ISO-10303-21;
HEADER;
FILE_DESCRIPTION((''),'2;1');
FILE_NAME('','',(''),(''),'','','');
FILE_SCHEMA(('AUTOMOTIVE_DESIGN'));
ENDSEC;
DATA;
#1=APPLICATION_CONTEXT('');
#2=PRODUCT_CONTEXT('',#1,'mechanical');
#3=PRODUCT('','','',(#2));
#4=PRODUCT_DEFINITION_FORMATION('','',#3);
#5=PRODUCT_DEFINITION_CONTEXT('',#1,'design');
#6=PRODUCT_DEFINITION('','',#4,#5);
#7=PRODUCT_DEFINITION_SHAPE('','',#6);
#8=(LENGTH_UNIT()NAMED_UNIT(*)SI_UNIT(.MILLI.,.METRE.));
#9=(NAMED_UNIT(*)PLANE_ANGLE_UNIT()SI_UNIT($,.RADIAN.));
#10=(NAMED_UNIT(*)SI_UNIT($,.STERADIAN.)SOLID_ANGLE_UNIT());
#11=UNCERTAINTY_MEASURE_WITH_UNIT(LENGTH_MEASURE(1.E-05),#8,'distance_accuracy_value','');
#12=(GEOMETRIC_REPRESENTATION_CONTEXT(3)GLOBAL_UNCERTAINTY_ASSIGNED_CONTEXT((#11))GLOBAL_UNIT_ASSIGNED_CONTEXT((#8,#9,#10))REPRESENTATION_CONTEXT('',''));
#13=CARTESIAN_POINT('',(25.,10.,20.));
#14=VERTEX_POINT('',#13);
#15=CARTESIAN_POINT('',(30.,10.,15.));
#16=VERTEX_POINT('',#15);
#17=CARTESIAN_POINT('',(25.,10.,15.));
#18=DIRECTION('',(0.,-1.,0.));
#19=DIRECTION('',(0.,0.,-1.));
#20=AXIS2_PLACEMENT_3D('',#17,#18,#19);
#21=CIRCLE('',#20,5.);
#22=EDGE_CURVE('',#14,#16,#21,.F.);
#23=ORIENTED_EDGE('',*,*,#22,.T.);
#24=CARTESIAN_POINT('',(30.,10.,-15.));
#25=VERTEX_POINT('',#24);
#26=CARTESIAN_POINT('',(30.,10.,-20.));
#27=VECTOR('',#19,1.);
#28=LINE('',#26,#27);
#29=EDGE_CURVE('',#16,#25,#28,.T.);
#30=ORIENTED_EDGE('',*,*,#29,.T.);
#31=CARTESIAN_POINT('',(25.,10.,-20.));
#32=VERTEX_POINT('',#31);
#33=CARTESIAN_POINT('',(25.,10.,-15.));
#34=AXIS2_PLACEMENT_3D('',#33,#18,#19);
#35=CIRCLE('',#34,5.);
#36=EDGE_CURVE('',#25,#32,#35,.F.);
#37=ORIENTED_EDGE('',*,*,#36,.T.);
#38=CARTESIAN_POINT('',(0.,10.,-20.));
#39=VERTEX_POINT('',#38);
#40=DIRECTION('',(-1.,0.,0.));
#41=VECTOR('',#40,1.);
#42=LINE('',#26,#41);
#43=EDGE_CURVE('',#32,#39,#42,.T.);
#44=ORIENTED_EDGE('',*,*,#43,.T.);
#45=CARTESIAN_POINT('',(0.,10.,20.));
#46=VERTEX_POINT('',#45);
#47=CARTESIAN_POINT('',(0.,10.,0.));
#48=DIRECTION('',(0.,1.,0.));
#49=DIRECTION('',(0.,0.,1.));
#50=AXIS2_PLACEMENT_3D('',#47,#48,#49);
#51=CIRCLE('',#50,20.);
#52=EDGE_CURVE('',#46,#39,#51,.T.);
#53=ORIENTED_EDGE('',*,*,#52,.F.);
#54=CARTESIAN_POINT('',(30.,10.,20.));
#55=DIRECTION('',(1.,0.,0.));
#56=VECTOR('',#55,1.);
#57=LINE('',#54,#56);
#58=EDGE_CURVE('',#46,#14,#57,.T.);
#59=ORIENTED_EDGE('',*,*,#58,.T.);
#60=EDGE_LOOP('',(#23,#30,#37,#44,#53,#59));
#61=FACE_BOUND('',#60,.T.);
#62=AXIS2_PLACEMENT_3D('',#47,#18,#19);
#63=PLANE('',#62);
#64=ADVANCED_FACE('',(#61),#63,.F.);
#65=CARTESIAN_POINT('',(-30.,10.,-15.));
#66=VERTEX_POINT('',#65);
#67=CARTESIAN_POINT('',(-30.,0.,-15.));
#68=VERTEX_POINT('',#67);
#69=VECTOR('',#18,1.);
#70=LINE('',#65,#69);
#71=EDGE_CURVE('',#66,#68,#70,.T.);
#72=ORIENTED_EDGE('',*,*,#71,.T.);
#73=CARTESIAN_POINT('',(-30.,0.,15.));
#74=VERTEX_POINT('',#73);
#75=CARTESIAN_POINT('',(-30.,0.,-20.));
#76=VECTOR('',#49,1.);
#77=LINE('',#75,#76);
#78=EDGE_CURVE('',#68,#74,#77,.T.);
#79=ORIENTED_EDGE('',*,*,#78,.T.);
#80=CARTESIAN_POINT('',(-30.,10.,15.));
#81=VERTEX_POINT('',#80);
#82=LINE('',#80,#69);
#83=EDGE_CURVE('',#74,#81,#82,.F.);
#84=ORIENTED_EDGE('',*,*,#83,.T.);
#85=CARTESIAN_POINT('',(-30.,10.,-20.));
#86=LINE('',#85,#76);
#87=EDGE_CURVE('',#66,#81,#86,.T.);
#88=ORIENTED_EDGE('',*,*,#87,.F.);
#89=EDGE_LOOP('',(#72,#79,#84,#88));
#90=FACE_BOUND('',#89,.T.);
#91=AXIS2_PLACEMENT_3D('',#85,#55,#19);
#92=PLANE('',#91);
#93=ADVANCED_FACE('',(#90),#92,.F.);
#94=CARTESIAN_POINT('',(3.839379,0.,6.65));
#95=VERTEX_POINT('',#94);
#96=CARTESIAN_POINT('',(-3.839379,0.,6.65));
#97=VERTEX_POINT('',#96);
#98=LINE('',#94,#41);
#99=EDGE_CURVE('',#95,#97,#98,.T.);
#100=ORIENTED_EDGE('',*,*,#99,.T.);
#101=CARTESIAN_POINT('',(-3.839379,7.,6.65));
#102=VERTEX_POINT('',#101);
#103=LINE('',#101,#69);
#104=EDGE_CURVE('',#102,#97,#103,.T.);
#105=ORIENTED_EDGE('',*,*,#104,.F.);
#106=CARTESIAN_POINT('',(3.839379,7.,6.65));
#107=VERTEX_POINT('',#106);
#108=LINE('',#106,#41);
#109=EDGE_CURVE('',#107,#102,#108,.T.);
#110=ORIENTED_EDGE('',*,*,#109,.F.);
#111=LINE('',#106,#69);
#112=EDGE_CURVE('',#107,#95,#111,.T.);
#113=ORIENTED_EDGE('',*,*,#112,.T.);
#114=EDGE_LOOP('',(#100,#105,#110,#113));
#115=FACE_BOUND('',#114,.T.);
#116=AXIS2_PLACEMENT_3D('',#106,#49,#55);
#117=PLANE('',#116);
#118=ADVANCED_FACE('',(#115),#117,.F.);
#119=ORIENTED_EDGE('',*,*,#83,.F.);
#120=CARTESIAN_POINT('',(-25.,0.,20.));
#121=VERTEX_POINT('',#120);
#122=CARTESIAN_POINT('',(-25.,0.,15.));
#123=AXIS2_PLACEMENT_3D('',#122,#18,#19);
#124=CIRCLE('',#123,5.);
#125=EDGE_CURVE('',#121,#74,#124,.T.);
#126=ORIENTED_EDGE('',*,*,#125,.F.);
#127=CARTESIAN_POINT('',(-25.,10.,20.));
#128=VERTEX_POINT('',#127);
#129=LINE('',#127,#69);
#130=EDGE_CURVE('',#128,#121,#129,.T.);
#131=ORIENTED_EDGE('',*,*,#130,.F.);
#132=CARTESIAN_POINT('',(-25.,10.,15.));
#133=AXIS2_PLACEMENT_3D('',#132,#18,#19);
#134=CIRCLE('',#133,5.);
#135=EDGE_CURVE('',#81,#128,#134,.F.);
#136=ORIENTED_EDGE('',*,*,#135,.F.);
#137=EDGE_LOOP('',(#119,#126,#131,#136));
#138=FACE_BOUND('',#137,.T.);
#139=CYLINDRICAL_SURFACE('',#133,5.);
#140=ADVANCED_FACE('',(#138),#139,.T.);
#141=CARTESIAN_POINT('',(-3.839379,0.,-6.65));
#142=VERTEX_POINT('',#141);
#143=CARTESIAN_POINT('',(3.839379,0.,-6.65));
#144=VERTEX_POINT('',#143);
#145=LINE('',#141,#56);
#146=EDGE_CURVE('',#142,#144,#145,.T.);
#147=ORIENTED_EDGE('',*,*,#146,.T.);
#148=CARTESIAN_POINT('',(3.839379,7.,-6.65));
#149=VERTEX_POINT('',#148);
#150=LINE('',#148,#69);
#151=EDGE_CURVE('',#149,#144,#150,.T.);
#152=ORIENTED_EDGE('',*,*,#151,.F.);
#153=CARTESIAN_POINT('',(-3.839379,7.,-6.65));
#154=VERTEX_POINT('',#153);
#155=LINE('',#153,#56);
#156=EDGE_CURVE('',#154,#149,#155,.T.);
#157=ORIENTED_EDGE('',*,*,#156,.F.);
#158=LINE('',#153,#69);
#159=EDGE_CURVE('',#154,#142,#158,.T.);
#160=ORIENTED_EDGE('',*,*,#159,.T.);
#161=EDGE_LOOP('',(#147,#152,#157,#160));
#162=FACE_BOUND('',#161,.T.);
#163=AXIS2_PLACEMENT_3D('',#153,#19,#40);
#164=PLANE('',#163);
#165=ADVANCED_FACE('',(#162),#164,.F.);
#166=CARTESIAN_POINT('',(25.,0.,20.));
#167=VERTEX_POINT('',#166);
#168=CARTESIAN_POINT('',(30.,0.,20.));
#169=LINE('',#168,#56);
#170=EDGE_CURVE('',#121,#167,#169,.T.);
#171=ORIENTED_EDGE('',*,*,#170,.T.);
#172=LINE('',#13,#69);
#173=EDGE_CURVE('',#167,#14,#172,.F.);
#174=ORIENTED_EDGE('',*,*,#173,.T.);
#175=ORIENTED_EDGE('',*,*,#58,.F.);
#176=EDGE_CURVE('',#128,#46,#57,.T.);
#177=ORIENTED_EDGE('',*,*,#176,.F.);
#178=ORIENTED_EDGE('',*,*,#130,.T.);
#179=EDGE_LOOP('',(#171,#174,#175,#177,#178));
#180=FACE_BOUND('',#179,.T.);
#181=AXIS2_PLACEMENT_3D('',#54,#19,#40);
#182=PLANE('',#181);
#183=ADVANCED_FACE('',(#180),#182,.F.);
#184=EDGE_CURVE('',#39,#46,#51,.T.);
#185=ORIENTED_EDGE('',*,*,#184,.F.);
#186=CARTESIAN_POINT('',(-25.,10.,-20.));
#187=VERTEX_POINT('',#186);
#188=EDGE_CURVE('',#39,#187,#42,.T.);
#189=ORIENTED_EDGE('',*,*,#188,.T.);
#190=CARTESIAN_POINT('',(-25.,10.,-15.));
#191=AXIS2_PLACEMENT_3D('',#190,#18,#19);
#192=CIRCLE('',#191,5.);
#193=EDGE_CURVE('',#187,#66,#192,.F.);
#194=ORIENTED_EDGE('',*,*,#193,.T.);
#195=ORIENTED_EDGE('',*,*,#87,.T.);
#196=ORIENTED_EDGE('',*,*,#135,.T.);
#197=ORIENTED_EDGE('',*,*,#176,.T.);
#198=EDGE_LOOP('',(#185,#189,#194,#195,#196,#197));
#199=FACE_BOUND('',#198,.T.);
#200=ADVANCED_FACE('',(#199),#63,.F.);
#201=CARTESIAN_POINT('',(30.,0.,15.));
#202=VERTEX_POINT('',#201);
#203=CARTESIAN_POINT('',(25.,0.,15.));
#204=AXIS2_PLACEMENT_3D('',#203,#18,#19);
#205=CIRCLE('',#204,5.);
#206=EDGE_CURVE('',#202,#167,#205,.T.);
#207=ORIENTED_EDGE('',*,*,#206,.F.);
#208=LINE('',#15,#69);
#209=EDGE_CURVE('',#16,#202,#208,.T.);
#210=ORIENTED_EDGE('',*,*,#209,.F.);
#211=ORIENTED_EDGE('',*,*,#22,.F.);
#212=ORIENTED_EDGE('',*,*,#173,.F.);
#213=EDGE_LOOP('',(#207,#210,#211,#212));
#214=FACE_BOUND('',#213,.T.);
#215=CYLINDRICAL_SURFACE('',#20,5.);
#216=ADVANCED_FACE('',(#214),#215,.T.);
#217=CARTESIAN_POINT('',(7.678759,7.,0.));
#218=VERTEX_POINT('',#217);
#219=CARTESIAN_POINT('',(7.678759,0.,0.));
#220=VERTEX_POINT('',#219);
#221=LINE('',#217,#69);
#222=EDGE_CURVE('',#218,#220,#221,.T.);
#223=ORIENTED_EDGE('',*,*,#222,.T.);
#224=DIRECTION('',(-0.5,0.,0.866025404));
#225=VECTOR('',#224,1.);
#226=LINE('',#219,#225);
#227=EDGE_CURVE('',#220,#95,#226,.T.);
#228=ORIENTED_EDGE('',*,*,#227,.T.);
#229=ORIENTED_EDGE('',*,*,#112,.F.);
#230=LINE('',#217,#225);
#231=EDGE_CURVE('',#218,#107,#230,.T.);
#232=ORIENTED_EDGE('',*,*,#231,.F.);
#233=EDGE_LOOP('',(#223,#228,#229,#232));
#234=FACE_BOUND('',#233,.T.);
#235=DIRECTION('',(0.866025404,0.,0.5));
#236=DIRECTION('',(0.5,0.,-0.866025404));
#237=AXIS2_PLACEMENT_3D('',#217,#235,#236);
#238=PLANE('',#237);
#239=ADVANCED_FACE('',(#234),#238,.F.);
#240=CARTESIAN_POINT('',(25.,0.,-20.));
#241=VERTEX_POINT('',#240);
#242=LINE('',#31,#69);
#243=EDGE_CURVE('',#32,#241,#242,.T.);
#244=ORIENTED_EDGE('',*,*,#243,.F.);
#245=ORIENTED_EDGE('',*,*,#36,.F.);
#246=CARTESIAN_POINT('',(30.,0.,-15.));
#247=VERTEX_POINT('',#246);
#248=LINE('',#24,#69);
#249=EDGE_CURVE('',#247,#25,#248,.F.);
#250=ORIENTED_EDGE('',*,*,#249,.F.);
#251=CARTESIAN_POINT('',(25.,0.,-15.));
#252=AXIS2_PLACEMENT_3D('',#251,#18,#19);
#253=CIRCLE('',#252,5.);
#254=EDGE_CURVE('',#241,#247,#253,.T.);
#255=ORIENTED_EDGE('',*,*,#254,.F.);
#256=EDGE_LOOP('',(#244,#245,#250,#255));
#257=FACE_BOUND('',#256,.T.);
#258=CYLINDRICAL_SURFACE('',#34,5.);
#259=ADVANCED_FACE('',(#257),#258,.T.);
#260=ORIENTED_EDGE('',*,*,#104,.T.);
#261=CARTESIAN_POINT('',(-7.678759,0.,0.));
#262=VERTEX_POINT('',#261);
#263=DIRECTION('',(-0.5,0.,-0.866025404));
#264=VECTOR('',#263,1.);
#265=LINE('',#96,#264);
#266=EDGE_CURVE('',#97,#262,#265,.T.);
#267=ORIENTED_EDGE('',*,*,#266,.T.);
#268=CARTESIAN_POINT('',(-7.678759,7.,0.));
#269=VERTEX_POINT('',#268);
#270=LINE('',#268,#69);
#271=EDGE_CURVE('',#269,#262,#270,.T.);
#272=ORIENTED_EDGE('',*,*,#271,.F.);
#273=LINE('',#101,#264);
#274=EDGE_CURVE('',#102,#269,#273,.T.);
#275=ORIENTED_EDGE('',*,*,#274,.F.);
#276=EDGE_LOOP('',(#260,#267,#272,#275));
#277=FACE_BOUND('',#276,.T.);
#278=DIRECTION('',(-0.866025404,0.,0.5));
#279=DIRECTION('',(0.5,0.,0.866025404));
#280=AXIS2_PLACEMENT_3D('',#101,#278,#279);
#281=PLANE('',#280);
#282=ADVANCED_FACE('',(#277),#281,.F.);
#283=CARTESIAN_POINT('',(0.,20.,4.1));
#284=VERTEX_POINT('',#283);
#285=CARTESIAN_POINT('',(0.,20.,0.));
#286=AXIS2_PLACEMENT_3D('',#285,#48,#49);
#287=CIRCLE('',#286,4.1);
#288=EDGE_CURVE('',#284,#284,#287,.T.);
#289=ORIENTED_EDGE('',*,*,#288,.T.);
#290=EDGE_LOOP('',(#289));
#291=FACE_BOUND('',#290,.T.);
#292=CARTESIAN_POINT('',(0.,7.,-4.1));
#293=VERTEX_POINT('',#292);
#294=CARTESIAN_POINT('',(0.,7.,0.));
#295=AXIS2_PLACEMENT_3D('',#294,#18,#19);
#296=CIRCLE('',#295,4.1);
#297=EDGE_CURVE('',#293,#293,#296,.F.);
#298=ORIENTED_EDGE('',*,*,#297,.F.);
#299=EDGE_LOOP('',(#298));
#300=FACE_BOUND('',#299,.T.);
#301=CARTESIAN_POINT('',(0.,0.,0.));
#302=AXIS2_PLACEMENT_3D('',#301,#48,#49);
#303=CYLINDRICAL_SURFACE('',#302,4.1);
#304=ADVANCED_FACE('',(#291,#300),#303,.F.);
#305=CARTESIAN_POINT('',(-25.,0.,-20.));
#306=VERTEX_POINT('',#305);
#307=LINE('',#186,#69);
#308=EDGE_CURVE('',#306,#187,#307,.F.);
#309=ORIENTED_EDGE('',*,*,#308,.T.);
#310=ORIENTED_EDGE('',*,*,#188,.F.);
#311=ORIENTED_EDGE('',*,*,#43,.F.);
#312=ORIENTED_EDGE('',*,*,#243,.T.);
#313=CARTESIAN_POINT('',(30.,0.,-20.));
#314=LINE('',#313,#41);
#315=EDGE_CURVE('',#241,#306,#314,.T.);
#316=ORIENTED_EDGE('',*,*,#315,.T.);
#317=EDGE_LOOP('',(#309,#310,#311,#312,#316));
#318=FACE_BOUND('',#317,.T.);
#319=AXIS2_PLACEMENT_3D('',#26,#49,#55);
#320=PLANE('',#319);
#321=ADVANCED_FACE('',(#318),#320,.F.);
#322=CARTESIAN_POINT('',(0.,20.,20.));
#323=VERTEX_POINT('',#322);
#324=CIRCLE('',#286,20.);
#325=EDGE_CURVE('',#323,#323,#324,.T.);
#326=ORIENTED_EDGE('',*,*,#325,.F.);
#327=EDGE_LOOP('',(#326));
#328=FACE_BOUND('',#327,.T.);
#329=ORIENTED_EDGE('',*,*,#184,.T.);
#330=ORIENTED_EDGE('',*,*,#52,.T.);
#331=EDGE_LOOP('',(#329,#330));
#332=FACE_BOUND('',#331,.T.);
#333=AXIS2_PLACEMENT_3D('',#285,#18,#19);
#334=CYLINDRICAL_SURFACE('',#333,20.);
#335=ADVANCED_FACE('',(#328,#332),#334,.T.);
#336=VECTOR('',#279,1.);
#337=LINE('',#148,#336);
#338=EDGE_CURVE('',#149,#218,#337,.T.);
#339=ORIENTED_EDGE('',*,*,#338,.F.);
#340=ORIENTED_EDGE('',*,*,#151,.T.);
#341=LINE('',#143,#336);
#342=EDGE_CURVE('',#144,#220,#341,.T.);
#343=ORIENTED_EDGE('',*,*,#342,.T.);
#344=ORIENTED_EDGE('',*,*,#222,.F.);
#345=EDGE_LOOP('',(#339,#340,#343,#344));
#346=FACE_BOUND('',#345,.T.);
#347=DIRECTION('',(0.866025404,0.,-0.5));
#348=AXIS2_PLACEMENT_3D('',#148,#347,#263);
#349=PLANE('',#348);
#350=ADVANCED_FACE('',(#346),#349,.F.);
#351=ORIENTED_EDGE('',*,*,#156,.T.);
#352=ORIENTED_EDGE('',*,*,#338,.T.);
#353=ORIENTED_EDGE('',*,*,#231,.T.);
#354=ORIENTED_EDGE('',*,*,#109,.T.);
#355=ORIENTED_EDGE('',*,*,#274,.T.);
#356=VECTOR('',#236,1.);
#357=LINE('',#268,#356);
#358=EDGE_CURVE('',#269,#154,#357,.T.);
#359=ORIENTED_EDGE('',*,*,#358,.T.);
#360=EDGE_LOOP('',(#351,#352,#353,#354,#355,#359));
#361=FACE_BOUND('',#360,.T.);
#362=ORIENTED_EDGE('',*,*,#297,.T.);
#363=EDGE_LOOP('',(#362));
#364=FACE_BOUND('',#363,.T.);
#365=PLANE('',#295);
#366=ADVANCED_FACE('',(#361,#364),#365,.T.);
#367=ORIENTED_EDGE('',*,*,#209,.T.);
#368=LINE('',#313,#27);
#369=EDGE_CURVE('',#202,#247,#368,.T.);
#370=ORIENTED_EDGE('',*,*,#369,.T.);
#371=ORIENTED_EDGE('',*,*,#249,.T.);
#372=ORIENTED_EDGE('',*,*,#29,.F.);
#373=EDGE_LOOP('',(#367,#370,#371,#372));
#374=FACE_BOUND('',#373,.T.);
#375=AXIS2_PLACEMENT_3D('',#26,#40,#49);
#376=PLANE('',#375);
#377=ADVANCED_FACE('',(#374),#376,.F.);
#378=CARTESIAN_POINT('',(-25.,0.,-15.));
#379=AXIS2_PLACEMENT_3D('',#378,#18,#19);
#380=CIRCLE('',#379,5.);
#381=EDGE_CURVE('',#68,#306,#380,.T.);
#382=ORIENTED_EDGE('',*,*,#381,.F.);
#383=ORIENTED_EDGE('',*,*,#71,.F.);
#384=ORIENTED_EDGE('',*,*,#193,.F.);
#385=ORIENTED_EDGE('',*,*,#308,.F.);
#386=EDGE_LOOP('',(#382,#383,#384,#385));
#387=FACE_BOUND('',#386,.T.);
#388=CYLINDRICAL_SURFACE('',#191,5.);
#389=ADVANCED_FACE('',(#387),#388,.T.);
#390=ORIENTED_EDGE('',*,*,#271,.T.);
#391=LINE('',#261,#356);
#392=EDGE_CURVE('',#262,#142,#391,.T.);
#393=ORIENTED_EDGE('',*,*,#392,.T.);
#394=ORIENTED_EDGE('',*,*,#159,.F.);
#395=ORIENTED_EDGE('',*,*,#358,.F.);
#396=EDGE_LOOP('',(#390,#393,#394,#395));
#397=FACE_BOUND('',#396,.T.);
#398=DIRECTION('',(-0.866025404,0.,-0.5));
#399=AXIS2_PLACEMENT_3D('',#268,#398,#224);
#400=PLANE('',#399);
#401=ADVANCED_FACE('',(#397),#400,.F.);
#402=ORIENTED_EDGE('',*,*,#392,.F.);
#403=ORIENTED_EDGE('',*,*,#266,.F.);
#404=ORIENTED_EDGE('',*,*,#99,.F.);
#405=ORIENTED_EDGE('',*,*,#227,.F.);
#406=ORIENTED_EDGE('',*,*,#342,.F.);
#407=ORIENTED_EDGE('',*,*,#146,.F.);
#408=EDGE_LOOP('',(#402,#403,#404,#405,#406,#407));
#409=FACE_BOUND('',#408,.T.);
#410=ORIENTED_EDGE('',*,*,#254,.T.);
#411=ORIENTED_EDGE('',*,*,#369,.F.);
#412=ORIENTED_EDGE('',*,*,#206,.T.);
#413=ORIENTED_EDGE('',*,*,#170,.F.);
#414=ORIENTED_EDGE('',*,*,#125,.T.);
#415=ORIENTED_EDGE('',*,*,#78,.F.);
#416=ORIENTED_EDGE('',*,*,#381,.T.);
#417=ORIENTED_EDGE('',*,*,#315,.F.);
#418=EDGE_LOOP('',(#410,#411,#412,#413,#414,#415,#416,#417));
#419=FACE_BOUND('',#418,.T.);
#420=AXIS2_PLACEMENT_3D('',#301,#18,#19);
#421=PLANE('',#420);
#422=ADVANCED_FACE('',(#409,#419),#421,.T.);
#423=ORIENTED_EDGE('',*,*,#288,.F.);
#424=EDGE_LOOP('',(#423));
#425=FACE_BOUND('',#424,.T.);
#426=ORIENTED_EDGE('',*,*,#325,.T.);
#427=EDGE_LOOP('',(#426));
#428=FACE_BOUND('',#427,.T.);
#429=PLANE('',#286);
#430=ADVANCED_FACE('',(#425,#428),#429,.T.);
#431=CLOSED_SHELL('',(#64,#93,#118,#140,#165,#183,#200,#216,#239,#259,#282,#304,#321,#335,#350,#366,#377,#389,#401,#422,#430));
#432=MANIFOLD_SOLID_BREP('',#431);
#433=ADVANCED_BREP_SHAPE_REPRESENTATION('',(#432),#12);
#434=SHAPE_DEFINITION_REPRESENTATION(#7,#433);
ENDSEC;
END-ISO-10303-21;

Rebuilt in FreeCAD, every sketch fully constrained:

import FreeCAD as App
import Part
import Sketcher

V = App.Vector
Q = App.Units.Quantity


def edges_at(feature, points):
    """Names of the edges that pass closest to the given points."""
    edges = feature.Shape.Edges
    near = lambda p: min(range(len(edges)), key=lambda i: edges[i].distToShape(Part.Vertex(*p))[0])
    return sorted({f"Edge{near(p) + 1}" for p in points})

doc = App.newDocument("Part")
params = doc.addObject("Spreadsheet::Sheet", "Params")
for row, (alias, value) in enumerate([
    ("sketch1_width", "60 mm"),
    ("sketch1_height", "40 mm"),
    ("pad1_length", "10 mm"),
    ("sketch2_diameter", "40 mm"),
    ("pad2_length", "10 mm"),
    ("sketch3_diameter", "8.2 mm"),
    ("fillet_radius", "5 mm"),
    ("pocket2_length", "7 mm"),
], start=1):
    params.set(f"A{row}", alias)
    params.set(f"B{row}", "=" + value)
    params.setAlias(f"B{row}", alias)

body = doc.addObject("PartDesign::Body", "Body")

# Sketch on XZ plane
sketch1 = body.newObject("Sketcher::SketchObject", "Sketch")
sketch1.AttachmentSupport = (doc.getObject("XZ_Plane"), [""])
sketch1.MapMode = "FlatFace"
sketch1.addGeometry([
    Part.LineSegment(V(-30, -20, 0), V(-30, 20, 0)),
    Part.LineSegment(V(-30, 20, 0), V(30, 20, 0)),
    Part.LineSegment(V(30, 20, 0), V(30, -20, 0)),
    Part.LineSegment(V(30, -20, 0), V(-30, -20, 0)),
], False)
sketch1.addConstraint([
    Sketcher.Constraint("Coincident", 0, 2, 1, 1),
    Sketcher.Constraint("Coincident", 1, 2, 2, 1),
    Sketcher.Constraint("Coincident", 2, 2, 3, 1),
    Sketcher.Constraint("Coincident", 3, 2, 0, 1),
    Sketcher.Constraint("Vertical", 0),
    Sketcher.Constraint("Horizontal", 1),
    Sketcher.Constraint("Vertical", 2),
    Sketcher.Constraint("Horizontal", 3),
    Sketcher.Constraint("Symmetric", 0, 2, 2, 2, -1, 1),
    Sketcher.Constraint("DistanceX", 1, 1, 1, 2, Q("60 mm")),
    Sketcher.Constraint("DistanceY", 0, 1, 0, 2, Q("40 mm")),
])
sketch1.setExpression("Constraints[9]", "Params.sketch1_width")
sketch1.setExpression("Constraints[10]", "Params.sketch1_height")
pad1 = body.newObject("PartDesign::Pad", "Pad")
pad1.Profile = sketch1
pad1.setExpression("Length", "Params.pad1_length")
pad1.Reversed = True

# Sketch on XZ plane
sketch2 = body.newObject("Sketcher::SketchObject", "Sketch001")
sketch2.AttachmentSupport = (doc.getObject("XZ_Plane"), [""])
sketch2.MapMode = "FlatFace"
sketch2.AttachmentOffset = App.Placement(V(0, 0, -10), App.Rotation())
sketch2.addGeometry(Part.Circle(V(0, 0, 0), V(0, 0, 1), 20), False)
sketch2.addConstraint([
    Sketcher.Constraint("Coincident", 0, 3, -1, 1),
    Sketcher.Constraint("Diameter", 0, Q("40 mm")),
])
sketch2.setExpression("Constraints[1]", "Params.sketch2_diameter")
pad2 = body.newObject("PartDesign::Pad", "Pad001")
pad2.Profile = sketch2
pad2.setExpression("Length", "Params.pad2_length")
pad2.Reversed = True

# Sketch on XZ plane
sketch3 = body.newObject("Sketcher::SketchObject", "Sketch002")
sketch3.AttachmentSupport = (doc.getObject("XZ_Plane"), [""])
sketch3.MapMode = "FlatFace"
sketch3.AttachmentOffset = App.Placement(V(0, 0, -20), App.Rotation())
sketch3.addGeometry(Part.Circle(V(0, 0, 0), V(0, 0, 1), 4.1), False)
sketch3.addConstraint([
    Sketcher.Constraint("Coincident", 0, 3, -1, 1),
    Sketcher.Constraint("Diameter", 0, Q("8.2 mm")),
])
sketch3.setExpression("Constraints[1]", "Params.sketch3_diameter")
pocket1 = body.newObject("PartDesign::Pocket", "Pocket")
pocket1.Profile = sketch3
pocket1.Type = "ThroughAll"
pocket1.Reversed = True
doc.recompute()

fillet = body.newObject("PartDesign::Fillet", "Fillet")
fillet.Base = (pocket1, edges_at(pocket1, [
    (-30, 5, -20),
    (30, 5, -20),
    (30, 5, 20),
    (-30, 5, 20),
]))
fillet.setExpression("Radius", "Params.fillet_radius")

# Sketch on XZ plane
sketch4 = body.newObject("Sketcher::SketchObject", "Sketch003")
sketch4.AttachmentSupport = (doc.getObject("XZ_Plane"), [""])
sketch4.MapMode = "FlatFace"
sketch4.addGeometry([
    Part.LineSegment(V(-8, 0, 0), V(-4, -7, 0)),  # 0
    Part.LineSegment(V(-4, -7, 0), V(4, -7, 0)),  # 1
    Part.LineSegment(V(4, -7, 0), V(8, 0, 0)),  # 2
    Part.LineSegment(V(8, 0, 0), V(4, 7, 0)),  # 3
    Part.LineSegment(V(4, 7, 0), V(-4, 7, 0)),  # 4
    Part.LineSegment(V(-4, 7, 0), V(-8, 0, 0)),  # 5
], False)
sketch4.addConstraint([
    Sketcher.Constraint("Coincident", 0, 2, 1, 1),
    Sketcher.Constraint("Coincident", 1, 2, 2, 1),
    Sketcher.Constraint("Coincident", 2, 2, 3, 1),
    Sketcher.Constraint("Coincident", 3, 2, 4, 1),
    Sketcher.Constraint("Coincident", 4, 2, 5, 1),
    Sketcher.Constraint("Coincident", 5, 2, 0, 1),
    Sketcher.Constraint("Horizontal", 1),
    Sketcher.Constraint("Horizontal", 4),
    Sketcher.Constraint("Symmetric", 0, 2, 3, 2, -1, 1),
    Sketcher.Constraint("Symmetric", 2, 2, 5, 2, -1, 1),
    Sketcher.Constraint("PointOnObject", 2, 2, -1),
    Sketcher.Constraint("Parallel", 2, 5),
    Sketcher.Constraint("Vertical", 1, 2, 3, 2),
    Sketcher.Constraint("Angle", 0, Q("-60 deg")),
    Sketcher.Constraint("DistanceY", 1, 2, 3, 2, Q("13.3 mm")),
    Sketcher.Constraint("DistanceX", 1, 1, 1, 2, Q("7.678759 mm")),
])
pocket2 = body.newObject("PartDesign::Pocket", "Pocket001")
pocket2.Profile = sketch4
pocket2.setExpression("Length", "Params.pocket2_length")

doc.recompute()
